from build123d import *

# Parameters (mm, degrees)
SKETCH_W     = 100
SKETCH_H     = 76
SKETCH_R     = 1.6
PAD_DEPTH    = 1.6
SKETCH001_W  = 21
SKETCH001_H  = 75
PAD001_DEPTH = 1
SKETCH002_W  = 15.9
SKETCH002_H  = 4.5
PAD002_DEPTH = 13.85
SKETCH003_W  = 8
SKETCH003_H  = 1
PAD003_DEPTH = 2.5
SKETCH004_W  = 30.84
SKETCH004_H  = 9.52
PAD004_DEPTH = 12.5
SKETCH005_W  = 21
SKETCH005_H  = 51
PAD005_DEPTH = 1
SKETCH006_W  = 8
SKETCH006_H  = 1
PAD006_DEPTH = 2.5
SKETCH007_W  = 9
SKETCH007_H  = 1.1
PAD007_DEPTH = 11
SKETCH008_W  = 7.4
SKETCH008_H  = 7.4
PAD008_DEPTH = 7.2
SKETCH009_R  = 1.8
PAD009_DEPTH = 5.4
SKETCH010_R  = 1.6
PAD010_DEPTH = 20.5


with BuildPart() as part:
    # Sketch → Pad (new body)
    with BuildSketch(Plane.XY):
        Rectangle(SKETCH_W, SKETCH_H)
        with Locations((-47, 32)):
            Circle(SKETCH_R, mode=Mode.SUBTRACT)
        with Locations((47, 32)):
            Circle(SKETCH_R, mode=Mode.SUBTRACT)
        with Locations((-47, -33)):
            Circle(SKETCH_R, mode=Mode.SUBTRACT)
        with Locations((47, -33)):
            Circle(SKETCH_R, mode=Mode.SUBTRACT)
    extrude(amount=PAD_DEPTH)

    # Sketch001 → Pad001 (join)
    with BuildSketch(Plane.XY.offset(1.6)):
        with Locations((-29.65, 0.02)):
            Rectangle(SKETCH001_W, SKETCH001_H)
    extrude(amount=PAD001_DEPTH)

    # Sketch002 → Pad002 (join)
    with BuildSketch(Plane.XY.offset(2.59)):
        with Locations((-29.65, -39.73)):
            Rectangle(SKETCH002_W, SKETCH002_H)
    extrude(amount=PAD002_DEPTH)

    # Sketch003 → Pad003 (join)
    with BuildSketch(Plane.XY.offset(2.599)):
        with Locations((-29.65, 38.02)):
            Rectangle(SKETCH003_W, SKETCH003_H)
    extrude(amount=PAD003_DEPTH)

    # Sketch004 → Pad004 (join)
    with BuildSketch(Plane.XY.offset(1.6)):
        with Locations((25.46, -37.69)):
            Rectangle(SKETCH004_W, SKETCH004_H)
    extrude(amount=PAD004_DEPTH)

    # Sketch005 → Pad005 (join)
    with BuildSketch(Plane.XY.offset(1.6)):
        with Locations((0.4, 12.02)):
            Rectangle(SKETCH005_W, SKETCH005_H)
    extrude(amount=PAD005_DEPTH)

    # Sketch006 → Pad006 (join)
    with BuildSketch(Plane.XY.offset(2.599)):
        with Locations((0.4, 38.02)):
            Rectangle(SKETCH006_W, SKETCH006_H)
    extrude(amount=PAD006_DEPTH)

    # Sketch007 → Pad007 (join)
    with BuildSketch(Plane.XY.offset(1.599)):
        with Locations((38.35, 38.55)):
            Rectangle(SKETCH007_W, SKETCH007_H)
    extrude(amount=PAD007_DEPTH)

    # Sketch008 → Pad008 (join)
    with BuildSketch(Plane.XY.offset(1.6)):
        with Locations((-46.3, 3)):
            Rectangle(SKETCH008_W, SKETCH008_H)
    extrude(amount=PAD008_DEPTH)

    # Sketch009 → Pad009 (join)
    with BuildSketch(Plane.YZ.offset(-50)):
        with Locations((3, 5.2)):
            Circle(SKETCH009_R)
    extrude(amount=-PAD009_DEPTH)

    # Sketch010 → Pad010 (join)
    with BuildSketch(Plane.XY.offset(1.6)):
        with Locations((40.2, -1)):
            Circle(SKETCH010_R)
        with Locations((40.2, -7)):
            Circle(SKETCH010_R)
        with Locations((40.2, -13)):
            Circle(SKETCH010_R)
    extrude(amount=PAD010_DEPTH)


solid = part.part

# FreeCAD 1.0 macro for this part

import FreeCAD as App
import Part
import Sketcher

V = App.Vector


def add_polygon(sketch, points):
    """Adds a closed chain of lines whose ends are joined by coincident constraints."""
    first, n = sketch.GeometryCount, len(points)
    for a, b in zip(points, points[1:] + points[:1]):
        sketch.addGeometry(Part.LineSegment(App.Vector(*a, 0), App.Vector(*b, 0)), False)
    for i in range(n):
        sketch.addConstraint(Sketcher.Constraint("Coincident", first + i, 2, first + (i + 1) % n, 1))

doc = App.newDocument("Part")
params = doc.addObject("Spreadsheet::Sheet", "Params")
for row, (alias, value) in enumerate([
    ("sketch1_diameter", "3.2 mm"),
    ("sketch1_width", "100 mm"),
    ("sketch1_height", "76 mm"),
    ("pad1_length", "1.6 mm"),
    ("sketch2_width", "21 mm"),
    ("sketch2_height", "75 mm"),
    ("pad2_length", "1 mm"),
    ("sketch3_width", "15.9 mm"),
    ("sketch3_height", "4.5 mm"),
    ("pad3_length", "13.85 mm"),
    ("sketch4_width", "8 mm"),
    ("sketch4_height", "1 mm"),
    ("pad4_length", "2.5 mm"),
    ("sketch5_width", "30.84 mm"),
    ("sketch5_height", "9.52 mm"),
    ("pad5_length", "12.5 mm"),
    ("sketch6_width", "21 mm"),
    ("sketch6_height", "51 mm"),
    ("pad6_length", "1 mm"),
    ("sketch7_width", "8 mm"),
    ("sketch7_height", "1 mm"),
    ("pad7_length", "2.5 mm"),
    ("sketch8_width", "9 mm"),
    ("sketch8_height", "1.1 mm"),
    ("pad8_length", "11 mm"),
    ("sketch9_width", "7.4 mm"),
    ("pad9_length", "7.2 mm"),
    ("sketch10_diameter", "3.6 mm"),
    ("pad10_length", "5.4 mm"),
    ("sketch11_diameter", "3.2 mm"),
    ("pad11_length", "20.5 mm"),
], start=1):
    params.set(f"A{row}", alias)
    params.set(f"B{row}", "=" + value)
    params.setAlias(f"B{row}", alias)

body = doc.addObject("PartDesign::Body", "Body")

sketch1 = doc.addObject("Sketcher::SketchObject", "Sketch")
body.addObject(sketch1)
sketch1.AttachmentSupport = (doc.XY_Plane, [""])
sketch1.MapMode = "FlatFace"
add_polygon(sketch1, [(-50, 38), (-50, -38), (50, -38), (50, 38)])
sketch1.addGeometry(Part.Circle(V(-47, -33, 0), V(0, 0, 1), 1.6), False)
sketch1.addGeometry(Part.Circle(V(47, -33, 0), V(0, 0, 1), 1.6), False)
sketch1.addGeometry(Part.Circle(V(-47, 32, 0), V(0, 0, 1), 1.6), False)
sketch1.addGeometry(Part.Circle(V(47, 32, 0), V(0, 0, 1), 1.6), False)
sketch1.addConstraint([
    Sketcher.Constraint("Vertical", 0),
    Sketcher.Constraint("Horizontal", 1),
    Sketcher.Constraint("Vertical", 2),
    Sketcher.Constraint("Horizontal", 3),
    Sketcher.Constraint("Equal", 4, 5),
    Sketcher.Constraint("Equal", 5, 6),
    Sketcher.Constraint("Equal", 6, 7),
    Sketcher.Constraint("Symmetric", 0, 2, 2, 2, -1, 1),
    Sketcher.Constraint("Symmetric", 4, 3, 5, 3, -2),
    Sketcher.Constraint("Symmetric", 6, 3, 7, 3, -2),
    Sketcher.Constraint("Vertical", 4, 3, 6, 3),
    Sketcher.Constraint("Diameter", 4, 3.2),
    Sketcher.Constraint("DistanceX", 1, 1, 1, 2, 100.0),
    Sketcher.Constraint("DistanceY", 0, 2, 0, 1, 76.0),
    Sketcher.Constraint("DistanceX", 4, 3, -1, 1, 47.0),
    Sketcher.Constraint("DistanceY", 4, 3, -1, 1, 33.0),
    Sketcher.Constraint("DistanceY", -1, 1, 6, 3, 32.0),
])
sketch1.setExpression("Constraints[15]", "Params.sketch1_diameter")
sketch1.setExpression("Constraints[16]", "Params.sketch1_width")
sketch1.setExpression("Constraints[17]", "Params.sketch1_height")
pad1 = doc.addObject("PartDesign::Pad", "Pad")
body.addObject(pad1)
pad1.Profile = sketch1
pad1.setExpression("Length", "Params.pad1_length")

sketch2 = doc.addObject("Sketcher::SketchObject", "Sketch001")
body.addObject(sketch2)
sketch2.AttachmentSupport = (doc.XY_Plane, [""])
sketch2.MapMode = "FlatFace"
sketch2.AttachmentOffset = App.Placement(V(0, 0, 1.6), App.Rotation())
add_polygon(sketch2, [(-40, 38), (-40, -37), (-19, -37), (-19, 38)])
sketch2.addConstraint([
    Sketcher.Constraint("Vertical", 0),
    Sketcher.Constraint("Horizontal", 1),
    Sketcher.Constraint("Vertical", 2),
    Sketcher.Constraint("Horizontal", 3),
    Sketcher.Constraint("DistanceX", 1, 1, 1, 2, 21.0),
    Sketcher.Constraint("DistanceY", 0, 2, 0, 1, 75.0),
    Sketcher.Constraint("DistanceX", 0, 2, -1, 1, 40.15),
    Sketcher.Constraint("DistanceY", 0, 2, -1, 1, 37.48),
])
sketch2.setExpression("Constraints[8]", "Params.sketch2_width")
sketch2.setExpression("Constraints[9]", "Params.sketch2_height")
pad2 = doc.addObject("PartDesign::Pad", "Pad001")
body.addObject(pad2)
pad2.Profile = sketch2
pad2.setExpression("Length", "Params.pad2_length")

sketch3 = doc.addObject("Sketcher::SketchObject", "Sketch002")
body.addObject(sketch3)
sketch3.AttachmentSupport = (doc.XY_Plane, [""])
sketch3.MapMode = "FlatFace"
sketch3.AttachmentOffset = App.Placement(V(0, 0, 2.59), App.Rotation())
add_polygon(sketch3, [(-37.6, -37.5), (-37.6, -42), (-21.7, -42), (-21.7, -37.5)])
sketch3.addConstraint([
    Sketcher.Constraint("Vertical", 0),
    Sketcher.Constraint("Horizontal", 1),
    Sketcher.Constraint("Vertical", 2),
    Sketcher.Constraint("Horizontal", 3),
    Sketcher.Constraint("DistanceX", 1, 1, 1, 2, 15.9),
    Sketcher.Constraint("DistanceY", 0, 2, 0, 1, 4.5),
    Sketcher.Constraint("DistanceX", 0, 2, -1, 1, 37.6),
    Sketcher.Constraint("DistanceY", 0, 2, -1, 1, 41.98),
])
sketch3.setExpression("Constraints[8]", "Params.sketch3_width")
sketch3.setExpression("Constraints[9]", "Params.sketch3_height")
pad3 = doc.addObject("PartDesign::Pad", "Pad002")
body.addObject(pad3)
pad3.Profile = sketch3
pad3.setExpression("Length", "Params.pad3_length")

sketch4 = doc.addObject("Sketcher::SketchObject", "Sketch003")
body.addObject(sketch4)
sketch4.AttachmentSupport = (doc.XY_Plane, [""])
sketch4.MapMode = "FlatFace"
sketch4.AttachmentOffset = App.Placement(V(0, 0, 2.599), App.Rotation())
add_polygon(sketch4, [(-33.6, 38.5), (-33.6, 37.5), (-25.6, 37.5), (-25.6, 38.5)])
sketch4.addConstraint([
    Sketcher.Constraint("Vertical", 0),
    Sketcher.Constraint("Horizontal", 1),
    Sketcher.Constraint("Vertical", 2),
    Sketcher.Constraint("Horizontal", 3),
    Sketcher.Constraint("DistanceX", 1, 1, 1, 2, 8.0),
    Sketcher.Constraint("DistanceY", 0, 2, 0, 1, 1.0),
    Sketcher.Constraint("DistanceX", 0, 2, -1, 1, 33.65),
    Sketcher.Constraint("DistanceY", -1, 1, 0, 2, 37.52),
])
sketch4.setExpression("Constraints[8]", "Params.sketch4_width")
sketch4.setExpression("Constraints[9]", "Params.sketch4_height")
pad4 = doc.addObject("PartDesign::Pad", "Pad003")
body.addObject(pad4)
pad4.Profile = sketch4
pad4.setExpression("Length", "Params.pad4_length")

sketch5 = doc.addObject("Sketcher::SketchObject", "Sketch004")
body.addObject(sketch5)
sketch5.AttachmentSupport = (doc.XY_Plane, [""])
sketch5.MapMode = "FlatFace"
sketch5.AttachmentOffset = App.Placement(V(0, 0, 1.6), App.Rotation())
add_polygon(sketch5, [(10, -33), (10, -42), (41, -42), (41, -33)])
sketch5.addConstraint([
    Sketcher.Constraint("Vertical", 0),
    Sketcher.Constraint("Horizontal", 1),
    Sketcher.Constraint("Vertical", 2),
    Sketcher.Constraint("Horizontal", 3),
    Sketcher.Constraint("DistanceX", 1, 1, 1, 2, 30.84),
    Sketcher.Constraint("DistanceY", 0, 2, 0, 1, 9.52),
    Sketcher.Constraint("DistanceX", -1, 1, 0, 2, 10.04),
    Sketcher.Constraint("DistanceY", 0, 2, -1, 1, 42.45),
])
sketch5.setExpression("Constraints[8]", "Params.sketch5_width")
sketch5.setExpression("Constraints[9]", "Params.sketch5_height")
pad5 = doc.addObject("PartDesign::Pad", "Pad004")
body.addObject(pad5)
pad5.Profile = sketch5
pad5.setExpression("Length", "Params.pad5_length")

sketch6 = doc.addObject("Sketcher::SketchObject", "Sketch005")
body.addObject(sketch6)
sketch6.AttachmentSupport = (doc.XY_Plane, [""])
sketch6.MapMode = "FlatFace"
sketch6.AttachmentOffset = App.Placement(V(0, 0, 1.6), App.Rotation())
add_polygon(sketch6, [(-10, 38), (-10, -13), (11, -13), (11, 38)])
sketch6.addConstraint([
    Sketcher.Constraint("Vertical", 0),
    Sketcher.Constraint("Horizontal", 1),
    Sketcher.Constraint("Vertical", 2),
    Sketcher.Constraint("Horizontal", 3),
    Sketcher.Constraint("DistanceX", 1, 1, 1, 2, 21.0),
    Sketcher.Constraint("DistanceY", 0, 2, 0, 1, 51.0),
    Sketcher.Constraint("DistanceX", 0, 2, -1, 1, 10.1),
    Sketcher.Constraint("DistanceY", 0, 2, -1, 1, 13.48),
])
sketch6.setExpression("Constraints[8]", "Params.sketch6_width")
sketch6.setExpression("Constraints[9]", "Params.sketch6_height")
pad6 = doc.addObject("PartDesign::Pad", "Pad005")
body.addObject(pad6)
pad6.Profile = sketch6
pad6.setExpression("Length", "Params.pad6_length")

sketch7 = doc.addObject("Sketcher::SketchObject", "Sketch006")
body.addObject(sketch7)
sketch7.AttachmentSupport = (doc.XY_Plane, [""])
sketch7.MapMode = "FlatFace"
sketch7.AttachmentOffset = App.Placement(V(0, 0, 2.599), App.Rotation())
add_polygon(sketch7, [(-3.6, 38.5), (-3.6, 37.5), (4.4, 37.5), (4.4, 38.5)])
sketch7.addConstraint([
    Sketcher.Constraint("Vertical", 0),
    Sketcher.Constraint("Horizontal", 1),
    Sketcher.Constraint("Vertical", 2),
    Sketcher.Constraint("Horizontal", 3),
    Sketcher.Constraint("DistanceX", 1, 1, 1, 2, 8.0),
    Sketcher.Constraint("DistanceY", 0, 2, 0, 1, 1.0),
    Sketcher.Constraint("DistanceX", 0, 2, -1, 1, 3.6),
    Sketcher.Constraint("DistanceY", -1, 1, 0, 2, 37.52),
])
sketch7.setExpression("Constraints[8]", "Params.sketch7_width")
sketch7.setExpression("Constraints[9]", "Params.sketch7_height")
pad7 = doc.addObject("PartDesign::Pad", "Pad006")
body.addObject(pad7)
pad7.Profile = sketch7
pad7.setExpression("Length", "Params.pad7_length")

sketch8 = doc.addObject("Sketcher::SketchObject", "Sketch007")
body.addObject(sketch8)
sketch8.AttachmentSupport = (doc.XY_Plane, [""])
sketch8.MapMode = "FlatFace"
sketch8.AttachmentOffset = App.Placement(V(0, 0, 1.599), App.Rotation())
add_polygon(sketch8, [(33.9, 39.1), (33.9, 38), (42.9, 38), (42.9, 39.1)])
sketch8.addConstraint([
    Sketcher.Constraint("Vertical", 0),
    Sketcher.Constraint("Horizontal", 1),
    Sketcher.Constraint("Vertical", 2),
    Sketcher.Constraint("Horizontal", 3),
    Sketcher.Constraint("DistanceX", 1, 1, 1, 2, 9.0),
    Sketcher.Constraint("DistanceY", 0, 2, 0, 1, 1.1),
    Sketcher.Constraint("DistanceY", -1, 1, 0, 2, 38.0),
    Sketcher.Constraint("DistanceX", -1, 1, 0, 2, 33.85),
])
sketch8.setExpression("Constraints[8]", "Params.sketch8_width")
sketch8.setExpression("Constraints[9]", "Params.sketch8_height")
pad8 = doc.addObject("PartDesign::Pad", "Pad007")
body.addObject(pad8)
pad8.Profile = sketch8
pad8.setExpression("Length", "Params.pad8_length")

sketch9 = doc.addObject("Sketcher::SketchObject", "Sketch008")
body.addObject(sketch9)
sketch9.AttachmentSupport = (doc.XY_Plane, [""])
sketch9.MapMode = "FlatFace"
sketch9.AttachmentOffset = App.Placement(V(0, 0, 1.6), App.Rotation())
add_polygon(sketch9, [(-50, 7), (-50, -1), (-43, -1), (-43, 7)])
sketch9.addConstraint([
    Sketcher.Constraint("Vertical", 0),
    Sketcher.Constraint("Horizontal", 1),
    Sketcher.Constraint("Vertical", 2),
    Sketcher.Constraint("Horizontal", 3),
    Sketcher.Constraint("Equal", 3, 0),
    Sketcher.Constraint("DistanceX", 1, 1, 1, 2, 7.4),
    Sketcher.Constraint("DistanceX", 0, 2, -1, 1, 50.0),
    Sketcher.Constraint("DistanceY", 0, 2, -1, 1, 0.7),
])
sketch9.setExpression("Constraints[9]", "Params.sketch9_width")
pad9 = doc.addObject("PartDesign::Pad", "Pad008")
body.addObject(pad9)
pad9.Profile = sketch9
pad9.setExpression("Length", "Params.pad9_length")

sketch10 = doc.addObject("Sketcher::SketchObject", "Sketch009")
body.addObject(sketch10)
sketch10.AttachmentSupport = (doc.YZ_Plane, [""])
sketch10.MapMode = "FlatFace"
sketch10.AttachmentOffset = App.Placement(V(0, 0, -50), App.Rotation())
sketch10.addGeometry(Part.Circle(V(3, 5.2, 0), V(0, 0, 1), 1.8), False)
sketch10.addConstraint([
    Sketcher.Constraint("Diameter", 0, 3.6),
    Sketcher.Constraint("DistanceX", -1, 1, 0, 3, 3.0),
    Sketcher.Constraint("DistanceY", -1, 1, 0, 3, 5.2),
])
sketch10.setExpression("Constraints[0]", "Params.sketch10_diameter")
pad10 = doc.addObject("PartDesign::Pad", "Pad009")
body.addObject(pad10)
pad10.Profile = sketch10
pad10.setExpression("Length", "Params.pad10_length")
pad10.Reversed = True

sketch11 = doc.addObject("Sketcher::SketchObject", "Sketch010")
body.addObject(sketch11)
sketch11.AttachmentSupport = (doc.XY_Plane, [""])
sketch11.MapMode = "FlatFace"
sketch11.AttachmentOffset = App.Placement(V(0, 0, 1.6), App.Rotation())
sketch11.addGeometry([
    Part.Circle(V(40.2, -1, 0), V(0, 0, 1), 1.6),
    Part.Circle(V(40.2, -7, 0), V(0, 0, 1), 1.6),
    Part.Circle(V(40.2, -13, 0), V(0, 0, 1), 1.6),
], False)
sketch11.addConstraint([
    Sketcher.Constraint("Equal", 0, 1),
    Sketcher.Constraint("Equal", 1, 2),
    Sketcher.Constraint("Vertical", 0, 3, 1, 3),
    Sketcher.Constraint("Vertical", 1, 3, 2, 3),
    Sketcher.Constraint("Diameter", 0, 3.2),
    Sketcher.Constraint("DistanceY", 0, 3, -1, 1, 1.0),
    Sketcher.Constraint("DistanceY", 1, 3, -1, 1, 7.0),
    Sketcher.Constraint("DistanceY", 2, 3, -1, 1, 13.0),
    Sketcher.Constraint("DistanceX", -1, 1, 0, 3, 40.2),
])
sketch11.setExpression("Constraints[4]", "Params.sketch11_diameter")
pad11 = doc.addObject("PartDesign::Pad", "Pad010")
body.addObject(pad11)
pad11.Profile = sketch11
pad11.setExpression("Length", "Params.pad11_length")

doc.recompute()
